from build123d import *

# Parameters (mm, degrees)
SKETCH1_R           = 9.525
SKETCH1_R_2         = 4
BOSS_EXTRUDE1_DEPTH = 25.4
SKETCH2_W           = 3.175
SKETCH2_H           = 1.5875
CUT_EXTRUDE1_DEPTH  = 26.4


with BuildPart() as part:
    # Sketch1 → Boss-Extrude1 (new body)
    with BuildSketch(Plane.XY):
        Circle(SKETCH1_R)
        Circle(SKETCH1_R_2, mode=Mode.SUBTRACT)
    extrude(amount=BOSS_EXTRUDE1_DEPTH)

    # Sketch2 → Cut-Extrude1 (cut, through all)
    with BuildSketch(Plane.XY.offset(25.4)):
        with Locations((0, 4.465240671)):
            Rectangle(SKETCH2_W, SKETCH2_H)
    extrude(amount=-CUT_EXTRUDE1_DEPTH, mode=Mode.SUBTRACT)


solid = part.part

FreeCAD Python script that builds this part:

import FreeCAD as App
import Part
import Sketcher
from FreeCAD import Vector
Q = App.Units.Quantity

doc = App.newDocument("Part")
body = doc.addObject("PartDesign::Body", "Body")

# Sketch on XY plane
sketch1 = body.newObject("Sketcher::SketchObject", "Sketch")
sketch1.AttachmentSupport = (doc.getObject("XY_Plane"), [""])
sketch1.MapMode = "FlatFace"
sketch1.addGeometry(Part.Circle(Vector(0, 0, 0), Vector(0, 0, 1), 9.5), False)
sketch1.addGeometry(Part.Circle(Vector(0, 0, 0), Vector(0, 0, 1), 4), False)
sketch1.addConstraint(Sketcher.Constraint("Coincident", 0, 3, -1, 1))
sketch1.addConstraint(Sketcher.Constraint("Coincident", 1, 3, -1, 1))
sketch1.addConstraint(Sketcher.Constraint("Diameter", 0, Q("0.75 in")))
sketch1.addConstraint(Sketcher.Constraint("Diameter", 1, Q("8 mm")))
pad1 = body.newObject("PartDesign::Pad", "Pad")
pad1.Profile = sketch1
pad1.Length = Q("1 in")

# Sketch on XY plane
sketch2 = body.newObject("Sketcher::SketchObject", "Sketch001")
sketch2.AttachmentSupport = (doc.getObject("XY_Plane"), [""])
sketch2.MapMode = "FlatFace"
sketch2.AttachmentOffset = App.Placement(Vector(0, 0, 1 * 25.4), App.Rotation())
sketch2.addGeometry(Part.LineSegment(Vector(-1.6, 5.3, 0), Vector(-1.6, 3.7, 0)), False)
sketch2.addGeometry(Part.LineSegment(Vector(-1.6, 3.7, 0), Vector(1.6, 3.7, 0)), False)
sketch2.addGeometry(Part.LineSegment(Vector(1.6, 3.7, 0), Vector(1.6, 5.3, 0)), False)
sketch2.addGeometry(Part.LineSegment(Vector(1.6, 5.3, 0), Vector(-1.6, 5.3, 0)), False)
sketch2.addConstraint(Sketcher.Constraint("Coincident", 0, 2, 1, 1))
sketch2.addConstraint(Sketcher.Constraint("Coincident", 1, 2, 2, 1))
sketch2.addConstraint(Sketcher.Constraint("Coincident", 2, 2, 3, 1))
sketch2.addConstraint(Sketcher.Constraint("Coincident", 3, 2, 0, 1))
sketch2.addConstraint(Sketcher.Constraint("Vertical", 0))
sketch2.addConstraint(Sketcher.Constraint("Horizontal", 1))
sketch2.addConstraint(Sketcher.Constraint("Vertical", 2))
sketch2.addConstraint(Sketcher.Constraint("Horizontal", 3))
sketch2.addConstraint(Sketcher.Constraint("DistanceX", 1, 1, 1, 2, Q("0.125 in")))
sketch2.addConstraint(Sketcher.Constraint("DistanceY", 0, 2, 0, 1, Q("0.0625 in")))
sketch2.addConstraint(Sketcher.Constraint("DistanceX", 0, 2, -1, 1, Q("0.0625 in")))
sketch2.addConstraint(Sketcher.Constraint("DistanceY", -1, 1, 0, 2, Q("3.671491 mm")))
pocket1 = body.newObject("PartDesign::Pocket", "Pocket")
pocket1.Profile = sketch2
pocket1.Type = "ThroughAll"

doc.recompute()
